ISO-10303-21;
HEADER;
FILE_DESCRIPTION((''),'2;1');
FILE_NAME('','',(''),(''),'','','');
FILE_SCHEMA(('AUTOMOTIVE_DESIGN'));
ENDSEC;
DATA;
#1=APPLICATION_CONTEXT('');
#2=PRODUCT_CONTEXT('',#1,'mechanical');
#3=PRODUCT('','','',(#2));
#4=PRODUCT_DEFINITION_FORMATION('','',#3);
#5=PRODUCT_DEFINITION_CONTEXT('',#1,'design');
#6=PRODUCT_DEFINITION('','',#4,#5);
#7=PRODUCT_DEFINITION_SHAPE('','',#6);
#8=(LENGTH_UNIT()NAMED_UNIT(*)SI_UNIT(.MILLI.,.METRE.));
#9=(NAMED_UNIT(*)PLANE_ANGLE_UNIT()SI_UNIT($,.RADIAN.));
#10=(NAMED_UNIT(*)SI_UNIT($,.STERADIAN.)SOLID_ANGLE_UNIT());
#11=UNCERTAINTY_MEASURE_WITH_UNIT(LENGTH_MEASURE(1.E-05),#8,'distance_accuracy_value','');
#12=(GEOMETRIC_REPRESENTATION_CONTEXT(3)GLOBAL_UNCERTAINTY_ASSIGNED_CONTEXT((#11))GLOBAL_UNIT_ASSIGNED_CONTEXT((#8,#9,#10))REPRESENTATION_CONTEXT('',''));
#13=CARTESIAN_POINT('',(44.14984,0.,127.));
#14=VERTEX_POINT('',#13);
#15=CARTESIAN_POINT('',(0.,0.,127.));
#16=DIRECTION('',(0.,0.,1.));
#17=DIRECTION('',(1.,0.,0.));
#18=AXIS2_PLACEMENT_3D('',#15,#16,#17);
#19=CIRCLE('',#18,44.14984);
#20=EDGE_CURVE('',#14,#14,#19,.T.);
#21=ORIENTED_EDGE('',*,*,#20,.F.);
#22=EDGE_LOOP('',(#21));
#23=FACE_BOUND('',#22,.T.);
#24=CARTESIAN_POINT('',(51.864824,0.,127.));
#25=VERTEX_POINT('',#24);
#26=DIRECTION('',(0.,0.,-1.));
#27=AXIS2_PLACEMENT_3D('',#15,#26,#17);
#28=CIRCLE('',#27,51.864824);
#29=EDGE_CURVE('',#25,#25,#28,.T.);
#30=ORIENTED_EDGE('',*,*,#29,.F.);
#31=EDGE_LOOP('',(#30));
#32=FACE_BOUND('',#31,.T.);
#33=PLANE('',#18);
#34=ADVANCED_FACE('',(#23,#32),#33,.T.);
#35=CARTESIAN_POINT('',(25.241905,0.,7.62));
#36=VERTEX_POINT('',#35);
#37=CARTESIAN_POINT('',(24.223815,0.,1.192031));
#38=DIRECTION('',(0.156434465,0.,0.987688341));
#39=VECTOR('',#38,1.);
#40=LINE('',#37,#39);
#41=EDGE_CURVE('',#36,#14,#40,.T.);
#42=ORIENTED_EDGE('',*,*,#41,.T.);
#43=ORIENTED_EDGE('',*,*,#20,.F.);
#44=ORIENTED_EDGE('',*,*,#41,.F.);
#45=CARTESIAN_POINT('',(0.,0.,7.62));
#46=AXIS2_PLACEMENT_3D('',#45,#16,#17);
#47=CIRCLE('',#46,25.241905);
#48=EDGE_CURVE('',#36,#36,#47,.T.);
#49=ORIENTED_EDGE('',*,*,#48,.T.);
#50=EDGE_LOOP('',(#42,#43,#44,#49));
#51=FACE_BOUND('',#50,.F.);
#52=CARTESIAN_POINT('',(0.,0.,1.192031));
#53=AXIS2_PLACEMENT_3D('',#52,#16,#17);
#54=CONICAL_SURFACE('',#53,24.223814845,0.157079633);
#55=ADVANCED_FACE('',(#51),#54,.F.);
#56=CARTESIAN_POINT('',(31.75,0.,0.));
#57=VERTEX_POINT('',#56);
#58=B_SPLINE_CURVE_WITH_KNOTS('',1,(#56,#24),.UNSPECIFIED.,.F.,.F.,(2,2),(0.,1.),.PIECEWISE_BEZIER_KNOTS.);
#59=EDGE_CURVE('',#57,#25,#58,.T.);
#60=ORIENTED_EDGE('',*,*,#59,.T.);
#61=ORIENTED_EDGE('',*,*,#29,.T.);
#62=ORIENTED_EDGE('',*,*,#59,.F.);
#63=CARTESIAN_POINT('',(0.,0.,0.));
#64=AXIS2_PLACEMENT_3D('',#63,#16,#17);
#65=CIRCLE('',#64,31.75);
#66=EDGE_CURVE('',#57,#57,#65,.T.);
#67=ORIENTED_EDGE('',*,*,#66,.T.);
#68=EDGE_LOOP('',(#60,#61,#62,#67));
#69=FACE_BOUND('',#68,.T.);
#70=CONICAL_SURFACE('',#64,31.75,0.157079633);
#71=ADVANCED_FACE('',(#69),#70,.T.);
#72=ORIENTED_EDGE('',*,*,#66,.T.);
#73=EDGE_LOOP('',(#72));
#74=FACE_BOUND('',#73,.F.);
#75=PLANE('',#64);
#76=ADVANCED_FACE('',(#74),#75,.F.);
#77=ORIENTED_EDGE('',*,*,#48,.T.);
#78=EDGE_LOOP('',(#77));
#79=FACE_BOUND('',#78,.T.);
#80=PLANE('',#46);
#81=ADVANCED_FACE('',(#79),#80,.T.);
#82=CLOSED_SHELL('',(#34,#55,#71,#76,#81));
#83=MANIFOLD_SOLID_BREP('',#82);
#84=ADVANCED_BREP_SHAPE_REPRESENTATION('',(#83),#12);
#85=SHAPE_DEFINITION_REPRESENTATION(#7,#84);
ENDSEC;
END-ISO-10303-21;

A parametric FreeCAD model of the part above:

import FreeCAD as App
import Part
import Sketcher
Q = App.Units.Quantity


def faces_at(feature, points):
    """Names of the faces that lie closest to the given points."""
    faces = feature.Shape.Faces
    near = lambda p: min(range(len(faces)), key=lambda i: faces[i].distToShape(Part.Vertex(*p))[0])
    return sorted({f"Face{near(p) + 1}" for p in points})

doc = App.newDocument("Part")
body = doc.addObject("PartDesign::Body", "Body")

sketch1 = doc.addObject("Sketcher::SketchObject", "Sketch")
body.addObject(sketch1)
sketch1.AttachmentSupport = (doc.XY_Plane, [""])
sketch1.MapMode = "FlatFace"
sketch1.addGeometry(Part.Circle(App.Vector(0, 0, 0), App.Vector(0, 0, 1), 32), False)
sketch1.addConstraint([
    Sketcher.Constraint("Coincident", 0, 3, -1, 1),
    Sketcher.Constraint("Diameter", 0, Q("2.5 in")),
])
pad1 = doc.addObject("PartDesign::Pad", "Pad")
body.addObject(pad1)
pad1.Profile = sketch1
pad1.Length = Q("5 in")
pad1.TaperAngle = 9
doc.recompute()

thickness = doc.addObject("PartDesign::Thickness", "Thickness")
body.addObject(thickness)
thickness.Base = (pad1, faces_at(pad1, [(0, 0, 127)]))
thickness.Value = Q("0.3 in")
thickness.Reversed = True
thickness.Join = "Intersection"

doc.recompute()
